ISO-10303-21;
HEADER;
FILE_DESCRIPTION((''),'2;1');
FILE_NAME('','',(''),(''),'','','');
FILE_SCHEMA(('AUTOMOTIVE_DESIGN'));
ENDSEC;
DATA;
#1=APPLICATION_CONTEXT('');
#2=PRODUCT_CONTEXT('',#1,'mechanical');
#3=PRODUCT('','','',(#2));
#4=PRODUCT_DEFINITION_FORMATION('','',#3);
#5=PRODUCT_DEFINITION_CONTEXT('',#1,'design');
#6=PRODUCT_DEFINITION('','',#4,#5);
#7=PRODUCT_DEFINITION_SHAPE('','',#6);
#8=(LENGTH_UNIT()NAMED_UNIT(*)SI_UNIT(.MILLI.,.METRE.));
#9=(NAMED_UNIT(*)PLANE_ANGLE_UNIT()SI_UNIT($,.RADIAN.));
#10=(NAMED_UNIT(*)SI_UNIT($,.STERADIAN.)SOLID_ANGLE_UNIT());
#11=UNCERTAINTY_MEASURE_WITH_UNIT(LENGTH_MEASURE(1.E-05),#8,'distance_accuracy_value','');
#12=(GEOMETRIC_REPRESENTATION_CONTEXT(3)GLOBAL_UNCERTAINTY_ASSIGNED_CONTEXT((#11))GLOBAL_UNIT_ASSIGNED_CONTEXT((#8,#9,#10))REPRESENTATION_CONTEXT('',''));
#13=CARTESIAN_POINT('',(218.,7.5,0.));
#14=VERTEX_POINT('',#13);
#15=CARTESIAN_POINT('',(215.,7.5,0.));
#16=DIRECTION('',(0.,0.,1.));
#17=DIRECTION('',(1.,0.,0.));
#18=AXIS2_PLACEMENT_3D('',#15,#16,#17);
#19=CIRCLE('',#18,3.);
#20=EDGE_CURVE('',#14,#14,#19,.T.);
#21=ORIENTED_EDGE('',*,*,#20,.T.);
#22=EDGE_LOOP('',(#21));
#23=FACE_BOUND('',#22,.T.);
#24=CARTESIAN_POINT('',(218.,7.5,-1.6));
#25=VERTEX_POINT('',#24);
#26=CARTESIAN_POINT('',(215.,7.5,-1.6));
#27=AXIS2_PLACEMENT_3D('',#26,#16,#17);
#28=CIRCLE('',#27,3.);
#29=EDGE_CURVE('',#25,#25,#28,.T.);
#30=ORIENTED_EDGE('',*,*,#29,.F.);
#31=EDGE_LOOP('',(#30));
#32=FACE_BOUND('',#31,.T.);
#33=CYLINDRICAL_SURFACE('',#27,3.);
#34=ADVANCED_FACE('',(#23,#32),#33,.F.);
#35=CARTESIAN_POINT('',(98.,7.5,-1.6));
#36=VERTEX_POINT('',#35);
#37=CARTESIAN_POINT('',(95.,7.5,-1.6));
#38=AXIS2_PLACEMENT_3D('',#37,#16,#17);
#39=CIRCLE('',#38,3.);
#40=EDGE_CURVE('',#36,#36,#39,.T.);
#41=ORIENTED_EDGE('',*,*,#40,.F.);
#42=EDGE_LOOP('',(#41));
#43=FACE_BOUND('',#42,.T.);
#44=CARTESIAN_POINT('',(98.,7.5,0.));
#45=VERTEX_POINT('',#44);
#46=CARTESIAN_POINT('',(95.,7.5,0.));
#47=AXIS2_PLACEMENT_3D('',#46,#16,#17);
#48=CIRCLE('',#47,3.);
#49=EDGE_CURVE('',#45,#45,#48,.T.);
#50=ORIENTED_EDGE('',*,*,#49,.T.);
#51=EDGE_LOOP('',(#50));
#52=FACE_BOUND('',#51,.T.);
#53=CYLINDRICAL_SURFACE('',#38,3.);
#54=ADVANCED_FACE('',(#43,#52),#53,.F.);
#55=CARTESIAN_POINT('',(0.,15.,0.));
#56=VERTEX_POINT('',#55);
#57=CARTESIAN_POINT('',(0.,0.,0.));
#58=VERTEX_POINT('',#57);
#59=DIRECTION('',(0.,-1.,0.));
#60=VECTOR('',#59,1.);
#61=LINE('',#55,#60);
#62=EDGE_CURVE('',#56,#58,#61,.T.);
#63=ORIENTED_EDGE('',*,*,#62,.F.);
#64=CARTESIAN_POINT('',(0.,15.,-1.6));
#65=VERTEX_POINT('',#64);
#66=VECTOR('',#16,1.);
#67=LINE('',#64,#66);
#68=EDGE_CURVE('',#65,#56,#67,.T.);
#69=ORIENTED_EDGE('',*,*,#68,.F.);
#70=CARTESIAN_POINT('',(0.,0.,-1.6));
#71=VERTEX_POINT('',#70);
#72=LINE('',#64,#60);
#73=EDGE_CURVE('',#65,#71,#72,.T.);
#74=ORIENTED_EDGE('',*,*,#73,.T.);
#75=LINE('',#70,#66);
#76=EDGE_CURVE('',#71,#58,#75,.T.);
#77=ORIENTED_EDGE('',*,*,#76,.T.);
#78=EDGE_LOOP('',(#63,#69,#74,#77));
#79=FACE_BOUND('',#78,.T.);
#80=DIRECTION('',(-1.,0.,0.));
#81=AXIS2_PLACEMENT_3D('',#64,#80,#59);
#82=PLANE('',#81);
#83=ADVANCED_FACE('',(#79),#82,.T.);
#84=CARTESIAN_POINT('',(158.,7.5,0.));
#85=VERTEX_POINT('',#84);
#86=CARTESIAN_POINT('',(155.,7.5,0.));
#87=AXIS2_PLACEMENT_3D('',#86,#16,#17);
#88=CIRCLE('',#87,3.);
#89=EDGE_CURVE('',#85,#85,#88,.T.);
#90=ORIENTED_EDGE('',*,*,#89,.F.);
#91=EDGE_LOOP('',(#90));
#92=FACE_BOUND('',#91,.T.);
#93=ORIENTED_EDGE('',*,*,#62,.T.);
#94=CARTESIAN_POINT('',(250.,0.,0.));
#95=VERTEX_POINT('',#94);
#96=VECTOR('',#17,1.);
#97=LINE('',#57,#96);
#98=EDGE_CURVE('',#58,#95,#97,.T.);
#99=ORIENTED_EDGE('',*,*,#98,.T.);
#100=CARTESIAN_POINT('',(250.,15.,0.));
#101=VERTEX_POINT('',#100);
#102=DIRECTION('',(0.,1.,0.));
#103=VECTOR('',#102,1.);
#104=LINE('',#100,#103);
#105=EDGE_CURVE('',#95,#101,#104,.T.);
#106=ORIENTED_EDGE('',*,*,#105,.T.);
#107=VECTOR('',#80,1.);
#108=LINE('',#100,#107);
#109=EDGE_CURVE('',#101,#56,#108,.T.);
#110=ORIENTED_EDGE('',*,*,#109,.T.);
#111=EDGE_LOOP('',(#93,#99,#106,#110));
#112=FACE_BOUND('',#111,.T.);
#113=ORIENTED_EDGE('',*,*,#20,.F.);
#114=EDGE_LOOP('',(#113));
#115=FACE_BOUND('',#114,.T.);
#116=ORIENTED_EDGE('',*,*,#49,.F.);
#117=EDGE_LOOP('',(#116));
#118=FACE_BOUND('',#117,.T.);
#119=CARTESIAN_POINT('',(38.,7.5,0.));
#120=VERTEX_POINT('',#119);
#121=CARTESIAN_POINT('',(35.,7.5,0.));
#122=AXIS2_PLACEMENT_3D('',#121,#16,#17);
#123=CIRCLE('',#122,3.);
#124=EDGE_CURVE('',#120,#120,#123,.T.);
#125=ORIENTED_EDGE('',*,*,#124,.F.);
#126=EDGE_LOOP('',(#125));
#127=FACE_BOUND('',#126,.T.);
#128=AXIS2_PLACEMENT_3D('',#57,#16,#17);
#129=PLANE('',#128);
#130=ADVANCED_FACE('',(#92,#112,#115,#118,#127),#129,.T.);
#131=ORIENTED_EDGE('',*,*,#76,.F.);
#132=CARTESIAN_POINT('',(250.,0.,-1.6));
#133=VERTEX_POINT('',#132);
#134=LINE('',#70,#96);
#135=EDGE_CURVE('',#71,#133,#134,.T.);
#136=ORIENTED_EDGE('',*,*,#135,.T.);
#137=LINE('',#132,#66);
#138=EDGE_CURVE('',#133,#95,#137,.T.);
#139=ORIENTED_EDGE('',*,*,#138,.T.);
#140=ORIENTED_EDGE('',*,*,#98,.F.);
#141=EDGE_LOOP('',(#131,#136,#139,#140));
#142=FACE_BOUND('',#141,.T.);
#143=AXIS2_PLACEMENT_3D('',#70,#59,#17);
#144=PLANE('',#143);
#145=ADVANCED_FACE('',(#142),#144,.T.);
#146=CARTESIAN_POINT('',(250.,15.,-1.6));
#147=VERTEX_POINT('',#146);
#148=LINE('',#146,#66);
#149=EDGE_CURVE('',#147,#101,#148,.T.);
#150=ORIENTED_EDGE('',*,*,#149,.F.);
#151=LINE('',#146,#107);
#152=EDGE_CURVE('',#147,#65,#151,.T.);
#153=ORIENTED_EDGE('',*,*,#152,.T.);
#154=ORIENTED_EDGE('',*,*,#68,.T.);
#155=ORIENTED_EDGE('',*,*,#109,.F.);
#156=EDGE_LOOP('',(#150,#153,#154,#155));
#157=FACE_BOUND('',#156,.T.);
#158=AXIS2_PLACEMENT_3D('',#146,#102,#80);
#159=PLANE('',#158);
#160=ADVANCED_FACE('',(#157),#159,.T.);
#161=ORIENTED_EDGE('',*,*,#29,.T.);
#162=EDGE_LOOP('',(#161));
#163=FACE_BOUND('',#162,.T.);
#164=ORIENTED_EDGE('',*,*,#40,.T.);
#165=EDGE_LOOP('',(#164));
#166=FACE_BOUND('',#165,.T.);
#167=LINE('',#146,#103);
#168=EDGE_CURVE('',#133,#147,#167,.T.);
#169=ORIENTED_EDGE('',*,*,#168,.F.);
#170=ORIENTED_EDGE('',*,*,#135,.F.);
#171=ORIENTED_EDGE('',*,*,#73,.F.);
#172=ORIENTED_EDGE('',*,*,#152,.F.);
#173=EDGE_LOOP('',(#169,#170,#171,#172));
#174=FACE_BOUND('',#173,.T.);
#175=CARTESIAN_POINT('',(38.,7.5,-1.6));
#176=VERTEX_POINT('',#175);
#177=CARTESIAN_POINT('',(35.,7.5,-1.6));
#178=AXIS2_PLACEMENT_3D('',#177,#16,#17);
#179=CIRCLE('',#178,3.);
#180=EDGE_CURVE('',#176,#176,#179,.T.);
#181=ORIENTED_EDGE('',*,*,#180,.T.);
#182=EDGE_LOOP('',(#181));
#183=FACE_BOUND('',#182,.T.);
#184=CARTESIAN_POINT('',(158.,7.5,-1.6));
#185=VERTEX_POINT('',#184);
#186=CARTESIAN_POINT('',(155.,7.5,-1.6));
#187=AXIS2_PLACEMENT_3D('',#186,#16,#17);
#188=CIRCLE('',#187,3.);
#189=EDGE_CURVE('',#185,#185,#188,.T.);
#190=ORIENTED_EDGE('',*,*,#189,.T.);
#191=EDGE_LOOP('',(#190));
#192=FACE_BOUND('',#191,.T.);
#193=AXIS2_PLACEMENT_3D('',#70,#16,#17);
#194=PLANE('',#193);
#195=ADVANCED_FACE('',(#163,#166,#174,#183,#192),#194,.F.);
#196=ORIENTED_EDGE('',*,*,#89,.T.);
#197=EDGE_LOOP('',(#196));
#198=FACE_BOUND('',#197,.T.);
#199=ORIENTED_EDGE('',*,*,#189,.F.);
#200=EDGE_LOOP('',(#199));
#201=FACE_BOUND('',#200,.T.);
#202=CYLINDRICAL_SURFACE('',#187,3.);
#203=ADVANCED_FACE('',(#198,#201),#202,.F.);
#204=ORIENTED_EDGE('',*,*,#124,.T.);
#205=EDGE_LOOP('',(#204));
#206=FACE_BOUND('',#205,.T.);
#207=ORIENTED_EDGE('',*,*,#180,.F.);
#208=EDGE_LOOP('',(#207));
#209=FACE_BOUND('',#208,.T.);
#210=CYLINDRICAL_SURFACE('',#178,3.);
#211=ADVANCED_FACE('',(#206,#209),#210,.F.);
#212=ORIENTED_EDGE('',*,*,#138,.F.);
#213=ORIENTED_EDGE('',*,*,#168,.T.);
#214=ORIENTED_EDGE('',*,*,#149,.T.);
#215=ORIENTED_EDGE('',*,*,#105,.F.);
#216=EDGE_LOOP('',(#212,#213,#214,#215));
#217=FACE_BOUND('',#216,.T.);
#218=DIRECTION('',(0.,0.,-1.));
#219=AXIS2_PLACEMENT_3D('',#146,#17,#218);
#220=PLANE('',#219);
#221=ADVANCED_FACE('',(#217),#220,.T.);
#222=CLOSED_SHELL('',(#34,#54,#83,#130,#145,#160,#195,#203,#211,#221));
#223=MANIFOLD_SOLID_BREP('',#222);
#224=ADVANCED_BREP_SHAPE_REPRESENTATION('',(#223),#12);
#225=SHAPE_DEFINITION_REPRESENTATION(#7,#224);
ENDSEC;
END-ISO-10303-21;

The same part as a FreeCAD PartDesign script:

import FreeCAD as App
import Part
import Sketcher

V = App.Vector
Q = App.Units.Quantity

doc = App.newDocument("Part")
body = doc.addObject("PartDesign::Body", "Body")

sketch1 = doc.addObject("Sketcher::SketchObject", "Sketch")
body.addObject(sketch1)
sketch1.AttachmentSupport = (doc.XY_Plane, [""])
sketch1.MapMode = "FlatFace"
sketch1.addGeometry([
    Part.LineSegment(V(0, 15, 0), V(0, 0, 0)),
    Part.LineSegment(V(0, 0, 0), V(250, 0, 0)),
    Part.LineSegment(V(250, 0, 0), V(250, 15, 0)),
    Part.LineSegment(V(250, 15, 0), V(0, 15, 0)),
    Part.Circle(V(35, 7.5, 0), V(0, 0, 1), 3),
    Part.Circle(V(95, 7.5, 0), V(0, 0, 1), 3),
    Part.Circle(V(155, 7.5, 0), V(0, 0, 1), 3),
    Part.Circle(V(215, 7.5, 0), V(0, 0, 1), 3),
], False)
sketch1.addConstraint([
    Sketcher.Constraint("Coincident", 0, 2, 1, 1),
    Sketcher.Constraint("Coincident", 1, 2, 2, 1),
    Sketcher.Constraint("Coincident", 2, 2, 3, 1),
    Sketcher.Constraint("Coincident", 3, 2, 0, 1),
    Sketcher.Constraint("Vertical", 0),
    Sketcher.Constraint("Horizontal", 1),
    Sketcher.Constraint("Vertical", 2),
    Sketcher.Constraint("Horizontal", 3),
    Sketcher.Constraint("Coincident", 0, 2, -1, 1),
    Sketcher.Constraint("Equal", 4, 5),
    Sketcher.Constraint("Equal", 5, 6),
    Sketcher.Constraint("Equal", 6, 7),
    Sketcher.Constraint("Horizontal", 4, 3, 5, 3),
    Sketcher.Constraint("Horizontal", 5, 3, 6, 3),
    Sketcher.Constraint("Horizontal", 6, 3, 7, 3),
    Sketcher.Constraint("Diameter", 4, Q("6 mm")),
    Sketcher.Constraint("DistanceX", 1, 1, 1, 2, Q("250 mm")),
    Sketcher.Constraint("DistanceY", 0, 2, 0, 1, Q("15 mm")),
    Sketcher.Constraint("DistanceX", -1, 1, 4, 3, Q("35 mm")),
    Sketcher.Constraint("DistanceX", -1, 1, 5, 3, Q("95 mm")),
    Sketcher.Constraint("DistanceX", -1, 1, 6, 3, Q("155 mm")),
    Sketcher.Constraint("DistanceX", -1, 1, 7, 3, Q("215 mm")),
    Sketcher.Constraint("DistanceY", -1, 1, 4, 3, Q("7.5 mm")),
])
pad1 = doc.addObject("PartDesign::Pad", "Pad")
body.addObject(pad1)
pad1.Profile = sketch1
pad1.Length = 1.6
pad1.Reversed = True

doc.recompute()
